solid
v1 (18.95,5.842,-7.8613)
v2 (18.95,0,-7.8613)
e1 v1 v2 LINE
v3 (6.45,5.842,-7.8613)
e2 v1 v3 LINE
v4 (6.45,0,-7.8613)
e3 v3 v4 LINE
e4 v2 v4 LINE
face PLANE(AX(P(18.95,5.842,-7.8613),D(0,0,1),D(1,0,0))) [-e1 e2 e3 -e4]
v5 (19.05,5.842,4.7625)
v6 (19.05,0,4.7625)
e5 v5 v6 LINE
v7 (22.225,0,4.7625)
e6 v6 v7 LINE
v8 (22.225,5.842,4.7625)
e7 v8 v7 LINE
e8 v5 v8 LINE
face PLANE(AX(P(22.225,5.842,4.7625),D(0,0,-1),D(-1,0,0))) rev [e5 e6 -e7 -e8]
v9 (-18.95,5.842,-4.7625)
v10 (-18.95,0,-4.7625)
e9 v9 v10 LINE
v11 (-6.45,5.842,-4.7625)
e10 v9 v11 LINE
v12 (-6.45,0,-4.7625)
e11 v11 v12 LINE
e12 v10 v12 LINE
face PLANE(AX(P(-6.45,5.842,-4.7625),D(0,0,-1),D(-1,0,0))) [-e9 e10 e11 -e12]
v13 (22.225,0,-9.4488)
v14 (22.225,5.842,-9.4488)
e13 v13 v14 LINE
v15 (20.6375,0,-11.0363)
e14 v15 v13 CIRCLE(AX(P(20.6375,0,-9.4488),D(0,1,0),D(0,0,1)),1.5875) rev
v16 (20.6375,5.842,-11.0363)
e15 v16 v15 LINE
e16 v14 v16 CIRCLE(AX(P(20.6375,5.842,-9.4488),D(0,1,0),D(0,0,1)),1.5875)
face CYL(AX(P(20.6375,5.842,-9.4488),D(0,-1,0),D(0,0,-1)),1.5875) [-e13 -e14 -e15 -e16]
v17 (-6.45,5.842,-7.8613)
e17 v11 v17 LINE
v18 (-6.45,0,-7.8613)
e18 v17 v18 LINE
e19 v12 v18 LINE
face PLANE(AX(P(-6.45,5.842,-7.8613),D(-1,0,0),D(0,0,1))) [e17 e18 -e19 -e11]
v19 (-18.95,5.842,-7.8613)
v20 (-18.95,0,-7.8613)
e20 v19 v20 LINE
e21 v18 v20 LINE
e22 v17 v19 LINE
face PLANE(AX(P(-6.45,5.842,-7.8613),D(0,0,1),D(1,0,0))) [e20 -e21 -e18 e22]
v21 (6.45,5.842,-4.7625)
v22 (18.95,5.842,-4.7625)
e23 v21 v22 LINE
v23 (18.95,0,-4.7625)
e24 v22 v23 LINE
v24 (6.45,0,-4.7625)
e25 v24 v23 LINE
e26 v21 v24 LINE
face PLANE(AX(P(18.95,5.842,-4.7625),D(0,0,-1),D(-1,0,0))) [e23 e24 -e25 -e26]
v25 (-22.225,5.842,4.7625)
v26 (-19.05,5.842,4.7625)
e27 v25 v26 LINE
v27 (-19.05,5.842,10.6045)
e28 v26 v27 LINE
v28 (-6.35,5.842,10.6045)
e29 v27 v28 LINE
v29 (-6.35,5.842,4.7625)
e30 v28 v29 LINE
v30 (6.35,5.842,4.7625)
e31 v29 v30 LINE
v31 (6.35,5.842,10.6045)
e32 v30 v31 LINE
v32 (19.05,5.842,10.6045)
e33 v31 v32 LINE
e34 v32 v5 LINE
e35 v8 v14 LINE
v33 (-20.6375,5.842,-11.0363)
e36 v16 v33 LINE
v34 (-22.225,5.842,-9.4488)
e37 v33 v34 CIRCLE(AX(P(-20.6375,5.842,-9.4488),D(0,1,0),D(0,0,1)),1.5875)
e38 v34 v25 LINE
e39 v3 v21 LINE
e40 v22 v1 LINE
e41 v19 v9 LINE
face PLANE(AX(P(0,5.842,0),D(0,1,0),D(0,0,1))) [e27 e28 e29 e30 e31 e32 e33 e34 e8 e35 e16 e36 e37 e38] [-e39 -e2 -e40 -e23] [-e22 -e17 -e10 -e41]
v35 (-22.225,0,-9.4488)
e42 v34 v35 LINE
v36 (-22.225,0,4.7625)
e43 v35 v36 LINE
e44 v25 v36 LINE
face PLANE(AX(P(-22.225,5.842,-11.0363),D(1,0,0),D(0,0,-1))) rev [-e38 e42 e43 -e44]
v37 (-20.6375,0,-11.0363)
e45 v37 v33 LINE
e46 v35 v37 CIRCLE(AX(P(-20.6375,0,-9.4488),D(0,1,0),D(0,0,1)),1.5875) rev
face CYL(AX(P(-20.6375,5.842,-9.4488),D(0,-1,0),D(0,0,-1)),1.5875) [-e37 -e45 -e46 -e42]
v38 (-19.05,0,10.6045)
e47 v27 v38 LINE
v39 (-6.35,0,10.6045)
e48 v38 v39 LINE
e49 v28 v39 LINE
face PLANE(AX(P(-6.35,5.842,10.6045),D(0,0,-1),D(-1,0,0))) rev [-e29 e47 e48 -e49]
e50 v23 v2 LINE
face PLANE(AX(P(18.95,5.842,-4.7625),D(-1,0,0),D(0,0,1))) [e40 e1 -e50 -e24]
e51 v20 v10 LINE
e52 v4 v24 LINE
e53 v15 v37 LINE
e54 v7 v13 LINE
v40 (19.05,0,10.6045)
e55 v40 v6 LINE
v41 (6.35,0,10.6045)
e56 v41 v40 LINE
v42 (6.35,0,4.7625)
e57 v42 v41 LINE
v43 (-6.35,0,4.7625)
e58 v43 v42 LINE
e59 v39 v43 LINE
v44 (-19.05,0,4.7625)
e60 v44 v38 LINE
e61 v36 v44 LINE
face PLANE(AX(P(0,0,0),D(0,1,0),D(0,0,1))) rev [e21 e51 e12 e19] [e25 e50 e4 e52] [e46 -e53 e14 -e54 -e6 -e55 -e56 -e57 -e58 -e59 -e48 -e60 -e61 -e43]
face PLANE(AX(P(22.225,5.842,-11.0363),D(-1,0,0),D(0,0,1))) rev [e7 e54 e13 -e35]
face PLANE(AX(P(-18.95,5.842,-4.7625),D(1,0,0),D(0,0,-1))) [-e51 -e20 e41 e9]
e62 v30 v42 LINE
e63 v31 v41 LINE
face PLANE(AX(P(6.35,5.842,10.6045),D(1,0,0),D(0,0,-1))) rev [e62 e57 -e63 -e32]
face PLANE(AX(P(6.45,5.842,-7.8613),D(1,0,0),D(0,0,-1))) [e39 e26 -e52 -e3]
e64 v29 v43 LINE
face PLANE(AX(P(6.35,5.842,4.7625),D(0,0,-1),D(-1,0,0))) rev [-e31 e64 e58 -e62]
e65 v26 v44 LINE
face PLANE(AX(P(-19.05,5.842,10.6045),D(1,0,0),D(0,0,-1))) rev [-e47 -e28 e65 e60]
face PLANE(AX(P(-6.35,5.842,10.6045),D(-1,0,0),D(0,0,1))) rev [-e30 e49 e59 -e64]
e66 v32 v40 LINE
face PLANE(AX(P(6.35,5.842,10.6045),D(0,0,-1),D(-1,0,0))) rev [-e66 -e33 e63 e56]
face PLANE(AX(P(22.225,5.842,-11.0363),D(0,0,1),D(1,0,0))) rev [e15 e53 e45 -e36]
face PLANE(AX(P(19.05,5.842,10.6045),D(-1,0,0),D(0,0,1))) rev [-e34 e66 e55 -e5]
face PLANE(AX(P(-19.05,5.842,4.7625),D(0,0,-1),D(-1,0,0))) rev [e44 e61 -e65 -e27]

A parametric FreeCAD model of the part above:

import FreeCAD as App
import Part
import Sketcher

V = App.Vector
Q = App.Units.Quantity


def edges_at(feature, points):
    """Names of the edges that pass closest to the given points."""
    edges = feature.Shape.Edges
    near = lambda p: min(range(len(edges)), key=lambda i: edges[i].distToShape(Part.Vertex(*p))[0])
    return sorted({f"Edge{near(p) + 1}" for p in points})

doc = App.newDocument("Part")
body = doc.addObject("PartDesign::Body", "Body")

# Sketch on XZ plane
sketch1 = body.newObject("Sketcher::SketchObject", "Sketch")
sketch1.AttachmentSupport = (doc.getObject("XZ_Plane"), [""])
sketch1.MapMode = "FlatFace"
sketch1.addGeometry([
    Part.LineSegment(V(19.05, 4.7625, 0), V(22.225, 4.7625, 0)),  # 0
    Part.LineSegment(V(22.225, 4.7625, 0), V(22.225, -11.0363, 0)),  # 1
    Part.LineSegment(V(22.225, -11.0363, 0), V(-22.225, -11.0363, 0)),  # 2
    Part.LineSegment(V(-22.225, -11.0363, 0), V(-22.225, 4.7625, 0)),  # 3
    Part.LineSegment(V(-22.225, 4.7625, 0), V(-19.05, 4.7625, 0)),  # 4
    Part.LineSegment(V(-19.05, 4.7625, 0), V(-19.05, 10.6045, 0)),  # 5
    Part.LineSegment(V(-19.05, 10.6045, 0), V(-6.35, 10.6045, 0)),  # 6
    Part.LineSegment(V(-6.35, 10.6045, 0), V(-6.35, 4.7625, 0)),  # 7
    Part.LineSegment(V(-6.35, 4.7625, 0), V(6.35, 4.7625, 0)),  # 8
    Part.LineSegment(V(6.35, 4.7625, 0), V(6.35, 10.6045, 0)),  # 9
    Part.LineSegment(V(6.35, 10.6045, 0), V(19.05, 10.6045, 0)),  # 10
    Part.LineSegment(V(19.05, 10.6045, 0), V(19.05, 4.7625, 0)),  # 11
    Part.LineSegment(V(6.45, -4.7625, 0), V(6.45, -7.8613, 0)),  # 12
    Part.LineSegment(V(6.45, -7.8613, 0), V(18.95, -7.8613, 0)),  # 13
    Part.LineSegment(V(18.95, -7.8613, 0), V(18.95, -4.7625, 0)),  # 14
    Part.LineSegment(V(18.95, -4.7625, 0), V(6.45, -4.7625, 0)),  # 15
    Part.LineSegment(V(-18.95, -4.7625, 0), V(-18.95, -7.8613, 0)),  # 16
    Part.LineSegment(V(-18.95, -7.8613, 0), V(-6.45, -7.8613, 0)),  # 17
    Part.LineSegment(V(-6.45, -7.8613, 0), V(-6.45, -4.7625, 0)),  # 18
    Part.LineSegment(V(-6.45, -4.7625, 0), V(-18.95, -4.7625, 0)),  # 19
], False)
sketch1.addConstraint([
    Sketcher.Constraint("Coincident", 0, 2, 1, 1),
    Sketcher.Constraint("Coincident", 1, 2, 2, 1),
    Sketcher.Constraint("Coincident", 2, 2, 3, 1),
    Sketcher.Constraint("Coincident", 3, 2, 4, 1),
    Sketcher.Constraint("Coincident", 4, 2, 5, 1),
    Sketcher.Constraint("Coincident", 5, 2, 6, 1),
    Sketcher.Constraint("Coincident", 6, 2, 7, 1),
    Sketcher.Constraint("Coincident", 7, 2, 8, 1),
    Sketcher.Constraint("Coincident", 8, 2, 9, 1),
    Sketcher.Constraint("Coincident", 9, 2, 10, 1),
    Sketcher.Constraint("Coincident", 10, 2, 11, 1),
    Sketcher.Constraint("Coincident", 11, 2, 0, 1),
    Sketcher.Constraint("Coincident", 12, 2, 13, 1),
    Sketcher.Constraint("Coincident", 13, 2, 14, 1),
    Sketcher.Constraint("Coincident", 14, 2, 15, 1),
    Sketcher.Constraint("Coincident", 15, 2, 12, 1),
    Sketcher.Constraint("Coincident", 16, 2, 17, 1),
    Sketcher.Constraint("Coincident", 17, 2, 18, 1),
    Sketcher.Constraint("Coincident", 18, 2, 19, 1),
    Sketcher.Constraint("Coincident", 19, 2, 16, 1),
    Sketcher.Constraint("Horizontal", 0),
    Sketcher.Constraint("Vertical", 1),
    Sketcher.Constraint("Horizontal", 2),
    Sketcher.Constraint("Vertical", 3),
    Sketcher.Constraint("Horizontal", 4),
    Sketcher.Constraint("Vertical", 5),
    Sketcher.Constraint("Horizontal", 6),
    Sketcher.Constraint("Vertical", 7),
    Sketcher.Constraint("Horizontal", 8),
    Sketcher.Constraint("Vertical", 9),
    Sketcher.Constraint("Horizontal", 10),
    Sketcher.Constraint("Vertical", 11),
    Sketcher.Constraint("Vertical", 12),
    Sketcher.Constraint("Horizontal", 13),
    Sketcher.Constraint("Vertical", 14),
    Sketcher.Constraint("Horizontal", 15),
    Sketcher.Constraint("Vertical", 16),
    Sketcher.Constraint("Horizontal", 17),
    Sketcher.Constraint("Vertical", 18),
    Sketcher.Constraint("Horizontal", 19),
    Sketcher.Constraint("Symmetric", 0, 2, 3, 2, -2),
    Sketcher.Constraint("Symmetric", 6, 2, 9, 2, -2),
    Sketcher.Constraint("Symmetric", 13, 2, 16, 2, -2),
    Sketcher.Constraint("Symmetric", 15, 2, 18, 2, -2),
    Sketcher.Constraint("Horizontal", 4, 2, 7, 2),
    Sketcher.Constraint("Equal", 0, 4),
    Sketcher.Constraint("Equal", 6, 8),
    Sketcher.Constraint("DistanceX", 6, 1, 6, 2, Q("0.5 in")),
    Sketcher.Constraint("DistanceX", 2, 2, 2, 1, Q("1.75 in")),
    Sketcher.Constraint("DistanceY", 5, 1, 5, 2, Q("0.23 in")),
    Sketcher.Constraint("DistanceY", 1, 2, 1, 1, Q("0.622 in")),
    Sketcher.Constraint("DistanceY", 12, 2, 12, 1, Q("0.122 in")),
    Sketcher.Constraint("DistanceY", -1, 1, 0, 2, Q("0.1875 in")),
    Sketcher.Constraint("DistanceY", 14, 2, -1, 1, Q("0.1875 in")),
    Sketcher.Constraint("DistanceX", 13, 1, 13, 2, Q("12.5 mm")),
    Sketcher.Constraint("DistanceX", -1, 1, 12, 2, Q("6.45 mm")),
])
pad1 = body.newObject("PartDesign::Pad", "Pad")
pad1.Profile = sketch1
pad1.Length = Q("0.23 in")
pad1.Reversed = True
doc.recompute()

fillet = body.newObject("PartDesign::Fillet", "Fillet")
fillet.Base = (pad1, edges_at(pad1, [(-22.225, 2.921, -11.036), (22.225, 2.921, -11.036)]))
fillet.Radius = Q("0.0625 in")

doc.recompute()
